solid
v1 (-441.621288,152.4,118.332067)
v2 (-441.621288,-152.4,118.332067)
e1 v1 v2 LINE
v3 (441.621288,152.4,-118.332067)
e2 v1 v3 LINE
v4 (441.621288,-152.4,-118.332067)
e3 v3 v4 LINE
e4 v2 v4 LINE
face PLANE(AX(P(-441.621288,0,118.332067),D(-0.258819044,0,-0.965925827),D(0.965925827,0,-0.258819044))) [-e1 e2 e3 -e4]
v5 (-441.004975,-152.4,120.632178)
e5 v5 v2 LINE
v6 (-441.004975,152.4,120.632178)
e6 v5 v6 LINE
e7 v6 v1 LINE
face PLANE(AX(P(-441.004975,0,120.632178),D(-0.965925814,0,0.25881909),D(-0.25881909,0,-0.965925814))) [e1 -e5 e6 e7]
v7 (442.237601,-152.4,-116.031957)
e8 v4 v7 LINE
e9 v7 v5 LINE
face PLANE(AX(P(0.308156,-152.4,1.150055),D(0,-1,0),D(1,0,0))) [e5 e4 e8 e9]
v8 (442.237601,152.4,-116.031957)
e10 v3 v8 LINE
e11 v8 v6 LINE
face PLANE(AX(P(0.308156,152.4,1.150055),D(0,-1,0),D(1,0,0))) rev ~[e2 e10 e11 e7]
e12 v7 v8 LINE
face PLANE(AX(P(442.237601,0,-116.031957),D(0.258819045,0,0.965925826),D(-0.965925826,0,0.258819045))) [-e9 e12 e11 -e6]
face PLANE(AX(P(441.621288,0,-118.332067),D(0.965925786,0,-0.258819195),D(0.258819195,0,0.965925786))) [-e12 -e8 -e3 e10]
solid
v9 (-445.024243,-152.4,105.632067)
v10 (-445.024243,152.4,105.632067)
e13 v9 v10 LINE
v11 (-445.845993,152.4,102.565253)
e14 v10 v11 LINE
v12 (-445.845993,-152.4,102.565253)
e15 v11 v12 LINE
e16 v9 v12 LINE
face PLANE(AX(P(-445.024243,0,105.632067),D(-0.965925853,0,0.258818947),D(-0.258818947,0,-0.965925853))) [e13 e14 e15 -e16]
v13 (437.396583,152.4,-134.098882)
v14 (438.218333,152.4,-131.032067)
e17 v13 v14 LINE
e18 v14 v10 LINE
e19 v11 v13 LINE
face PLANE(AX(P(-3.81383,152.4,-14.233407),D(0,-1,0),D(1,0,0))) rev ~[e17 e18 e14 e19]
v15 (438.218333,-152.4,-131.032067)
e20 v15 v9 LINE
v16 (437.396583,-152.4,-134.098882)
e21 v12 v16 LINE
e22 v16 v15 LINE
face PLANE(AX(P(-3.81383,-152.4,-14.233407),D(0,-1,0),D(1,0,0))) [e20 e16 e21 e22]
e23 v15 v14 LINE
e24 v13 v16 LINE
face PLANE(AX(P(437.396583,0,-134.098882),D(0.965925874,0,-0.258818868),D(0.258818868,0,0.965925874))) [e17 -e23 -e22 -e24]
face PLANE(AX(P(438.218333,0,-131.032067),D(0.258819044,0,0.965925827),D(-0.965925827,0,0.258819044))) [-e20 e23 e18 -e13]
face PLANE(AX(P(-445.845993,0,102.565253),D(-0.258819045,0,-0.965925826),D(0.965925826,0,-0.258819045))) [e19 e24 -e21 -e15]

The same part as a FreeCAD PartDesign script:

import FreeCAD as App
import Part
import Sketcher

V = App.Vector
Q = App.Units.Quantity


def add_polygon(sketch, points):
    """Adds a closed chain of lines whose ends are joined by coincident constraints."""
    first, n = sketch.GeometryCount, len(points)
    for a, b in zip(points, points[1:] + points[:1]):
        sketch.addGeometry(Part.LineSegment(App.Vector(*a, 0), App.Vector(*b, 0)), False)
    for i in range(n):
        sketch.addConstraint(Sketcher.Constraint("Coincident", first + i, 2, first + (i + 1) % n, 1))

doc = App.newDocument("Part")
body = doc.addObject("PartDesign::Body", "Body")

sketch1 = body.newObject("Sketcher::SketchObject", "Sketch")
sketch1.AttachmentSupport = (doc.getObject("XZ_Plane"), [""])
sketch1.MapMode = "FlatFace"
add_polygon(sketch1, [(-441, 120.6), (-441.6, 118.3), (441.6, -118.3), (442.2, -116)])
sketch1.addConstraint(Sketcher.Constraint("Symmetric", 0, 2, 1, 2, -1, 1))
sketch1.addConstraint(Sketcher.Constraint("Perpendicular", 0, 1))
sketch1.addConstraint(Sketcher.Constraint("Perpendicular", 1, 2))
sketch1.addConstraint(Sketcher.Constraint("Perpendicular", 2, 3))
sketch1.addConstraint(Sketcher.Constraint("Distance", 1, Q("36 in")))
sketch1.addConstraint(Sketcher.Constraint("Angle", 1, Q("-15 deg")))
sketch1.addConstraint(Sketcher.Constraint("Distance", 0, Q("0.09375 in")))
pad1 = body.newObject("PartDesign::Pad", "Pad")
pad1.Profile = sketch1
pad1.Length = Q("12 in")
pad1.Midplane = True
body2 = doc.addObject("PartDesign::Body", "Body001")

sketch2 = body2.newObject("Sketcher::SketchObject", "Sketch001")
sketch2.AttachmentSupport = (doc.getObject("XZ_Plane001"), [""])
sketch2.MapMode = "FlatFace"
add_polygon(sketch2, [(-445, 105.6), (-445.8, 102.6), (437.4, -134.1), (438.2, -131)])
sketch2.addConstraint(Sketcher.Constraint("Perpendicular", 0, 1))
sketch2.addConstraint(Sketcher.Constraint("Perpendicular", 1, 2))
sketch2.addConstraint(Sketcher.Constraint("Perpendicular", 2, 3))
sketch2.addConstraint(Sketcher.Constraint("Distance", 1, Q("36 in")))
sketch2.addConstraint(Sketcher.Constraint("Angle", 1, Q("-15 deg")))
sketch2.addConstraint(Sketcher.Constraint("Distance", 0, Q("0.125 in")))
sketch2.addConstraint(Sketcher.Constraint("DistanceY", 1, 2, -1, 1, Q("134.098882 mm")))
sketch2.addConstraint(Sketcher.Constraint("DistanceX", 0, 2, -1, 1, Q("445.845993 mm")))
pad2 = body2.newObject("PartDesign::Pad", "Pad001")
pad2.Profile = sketch2
pad2.Length = Q("12 in")
pad2.Midplane = True

doc.recompute()
